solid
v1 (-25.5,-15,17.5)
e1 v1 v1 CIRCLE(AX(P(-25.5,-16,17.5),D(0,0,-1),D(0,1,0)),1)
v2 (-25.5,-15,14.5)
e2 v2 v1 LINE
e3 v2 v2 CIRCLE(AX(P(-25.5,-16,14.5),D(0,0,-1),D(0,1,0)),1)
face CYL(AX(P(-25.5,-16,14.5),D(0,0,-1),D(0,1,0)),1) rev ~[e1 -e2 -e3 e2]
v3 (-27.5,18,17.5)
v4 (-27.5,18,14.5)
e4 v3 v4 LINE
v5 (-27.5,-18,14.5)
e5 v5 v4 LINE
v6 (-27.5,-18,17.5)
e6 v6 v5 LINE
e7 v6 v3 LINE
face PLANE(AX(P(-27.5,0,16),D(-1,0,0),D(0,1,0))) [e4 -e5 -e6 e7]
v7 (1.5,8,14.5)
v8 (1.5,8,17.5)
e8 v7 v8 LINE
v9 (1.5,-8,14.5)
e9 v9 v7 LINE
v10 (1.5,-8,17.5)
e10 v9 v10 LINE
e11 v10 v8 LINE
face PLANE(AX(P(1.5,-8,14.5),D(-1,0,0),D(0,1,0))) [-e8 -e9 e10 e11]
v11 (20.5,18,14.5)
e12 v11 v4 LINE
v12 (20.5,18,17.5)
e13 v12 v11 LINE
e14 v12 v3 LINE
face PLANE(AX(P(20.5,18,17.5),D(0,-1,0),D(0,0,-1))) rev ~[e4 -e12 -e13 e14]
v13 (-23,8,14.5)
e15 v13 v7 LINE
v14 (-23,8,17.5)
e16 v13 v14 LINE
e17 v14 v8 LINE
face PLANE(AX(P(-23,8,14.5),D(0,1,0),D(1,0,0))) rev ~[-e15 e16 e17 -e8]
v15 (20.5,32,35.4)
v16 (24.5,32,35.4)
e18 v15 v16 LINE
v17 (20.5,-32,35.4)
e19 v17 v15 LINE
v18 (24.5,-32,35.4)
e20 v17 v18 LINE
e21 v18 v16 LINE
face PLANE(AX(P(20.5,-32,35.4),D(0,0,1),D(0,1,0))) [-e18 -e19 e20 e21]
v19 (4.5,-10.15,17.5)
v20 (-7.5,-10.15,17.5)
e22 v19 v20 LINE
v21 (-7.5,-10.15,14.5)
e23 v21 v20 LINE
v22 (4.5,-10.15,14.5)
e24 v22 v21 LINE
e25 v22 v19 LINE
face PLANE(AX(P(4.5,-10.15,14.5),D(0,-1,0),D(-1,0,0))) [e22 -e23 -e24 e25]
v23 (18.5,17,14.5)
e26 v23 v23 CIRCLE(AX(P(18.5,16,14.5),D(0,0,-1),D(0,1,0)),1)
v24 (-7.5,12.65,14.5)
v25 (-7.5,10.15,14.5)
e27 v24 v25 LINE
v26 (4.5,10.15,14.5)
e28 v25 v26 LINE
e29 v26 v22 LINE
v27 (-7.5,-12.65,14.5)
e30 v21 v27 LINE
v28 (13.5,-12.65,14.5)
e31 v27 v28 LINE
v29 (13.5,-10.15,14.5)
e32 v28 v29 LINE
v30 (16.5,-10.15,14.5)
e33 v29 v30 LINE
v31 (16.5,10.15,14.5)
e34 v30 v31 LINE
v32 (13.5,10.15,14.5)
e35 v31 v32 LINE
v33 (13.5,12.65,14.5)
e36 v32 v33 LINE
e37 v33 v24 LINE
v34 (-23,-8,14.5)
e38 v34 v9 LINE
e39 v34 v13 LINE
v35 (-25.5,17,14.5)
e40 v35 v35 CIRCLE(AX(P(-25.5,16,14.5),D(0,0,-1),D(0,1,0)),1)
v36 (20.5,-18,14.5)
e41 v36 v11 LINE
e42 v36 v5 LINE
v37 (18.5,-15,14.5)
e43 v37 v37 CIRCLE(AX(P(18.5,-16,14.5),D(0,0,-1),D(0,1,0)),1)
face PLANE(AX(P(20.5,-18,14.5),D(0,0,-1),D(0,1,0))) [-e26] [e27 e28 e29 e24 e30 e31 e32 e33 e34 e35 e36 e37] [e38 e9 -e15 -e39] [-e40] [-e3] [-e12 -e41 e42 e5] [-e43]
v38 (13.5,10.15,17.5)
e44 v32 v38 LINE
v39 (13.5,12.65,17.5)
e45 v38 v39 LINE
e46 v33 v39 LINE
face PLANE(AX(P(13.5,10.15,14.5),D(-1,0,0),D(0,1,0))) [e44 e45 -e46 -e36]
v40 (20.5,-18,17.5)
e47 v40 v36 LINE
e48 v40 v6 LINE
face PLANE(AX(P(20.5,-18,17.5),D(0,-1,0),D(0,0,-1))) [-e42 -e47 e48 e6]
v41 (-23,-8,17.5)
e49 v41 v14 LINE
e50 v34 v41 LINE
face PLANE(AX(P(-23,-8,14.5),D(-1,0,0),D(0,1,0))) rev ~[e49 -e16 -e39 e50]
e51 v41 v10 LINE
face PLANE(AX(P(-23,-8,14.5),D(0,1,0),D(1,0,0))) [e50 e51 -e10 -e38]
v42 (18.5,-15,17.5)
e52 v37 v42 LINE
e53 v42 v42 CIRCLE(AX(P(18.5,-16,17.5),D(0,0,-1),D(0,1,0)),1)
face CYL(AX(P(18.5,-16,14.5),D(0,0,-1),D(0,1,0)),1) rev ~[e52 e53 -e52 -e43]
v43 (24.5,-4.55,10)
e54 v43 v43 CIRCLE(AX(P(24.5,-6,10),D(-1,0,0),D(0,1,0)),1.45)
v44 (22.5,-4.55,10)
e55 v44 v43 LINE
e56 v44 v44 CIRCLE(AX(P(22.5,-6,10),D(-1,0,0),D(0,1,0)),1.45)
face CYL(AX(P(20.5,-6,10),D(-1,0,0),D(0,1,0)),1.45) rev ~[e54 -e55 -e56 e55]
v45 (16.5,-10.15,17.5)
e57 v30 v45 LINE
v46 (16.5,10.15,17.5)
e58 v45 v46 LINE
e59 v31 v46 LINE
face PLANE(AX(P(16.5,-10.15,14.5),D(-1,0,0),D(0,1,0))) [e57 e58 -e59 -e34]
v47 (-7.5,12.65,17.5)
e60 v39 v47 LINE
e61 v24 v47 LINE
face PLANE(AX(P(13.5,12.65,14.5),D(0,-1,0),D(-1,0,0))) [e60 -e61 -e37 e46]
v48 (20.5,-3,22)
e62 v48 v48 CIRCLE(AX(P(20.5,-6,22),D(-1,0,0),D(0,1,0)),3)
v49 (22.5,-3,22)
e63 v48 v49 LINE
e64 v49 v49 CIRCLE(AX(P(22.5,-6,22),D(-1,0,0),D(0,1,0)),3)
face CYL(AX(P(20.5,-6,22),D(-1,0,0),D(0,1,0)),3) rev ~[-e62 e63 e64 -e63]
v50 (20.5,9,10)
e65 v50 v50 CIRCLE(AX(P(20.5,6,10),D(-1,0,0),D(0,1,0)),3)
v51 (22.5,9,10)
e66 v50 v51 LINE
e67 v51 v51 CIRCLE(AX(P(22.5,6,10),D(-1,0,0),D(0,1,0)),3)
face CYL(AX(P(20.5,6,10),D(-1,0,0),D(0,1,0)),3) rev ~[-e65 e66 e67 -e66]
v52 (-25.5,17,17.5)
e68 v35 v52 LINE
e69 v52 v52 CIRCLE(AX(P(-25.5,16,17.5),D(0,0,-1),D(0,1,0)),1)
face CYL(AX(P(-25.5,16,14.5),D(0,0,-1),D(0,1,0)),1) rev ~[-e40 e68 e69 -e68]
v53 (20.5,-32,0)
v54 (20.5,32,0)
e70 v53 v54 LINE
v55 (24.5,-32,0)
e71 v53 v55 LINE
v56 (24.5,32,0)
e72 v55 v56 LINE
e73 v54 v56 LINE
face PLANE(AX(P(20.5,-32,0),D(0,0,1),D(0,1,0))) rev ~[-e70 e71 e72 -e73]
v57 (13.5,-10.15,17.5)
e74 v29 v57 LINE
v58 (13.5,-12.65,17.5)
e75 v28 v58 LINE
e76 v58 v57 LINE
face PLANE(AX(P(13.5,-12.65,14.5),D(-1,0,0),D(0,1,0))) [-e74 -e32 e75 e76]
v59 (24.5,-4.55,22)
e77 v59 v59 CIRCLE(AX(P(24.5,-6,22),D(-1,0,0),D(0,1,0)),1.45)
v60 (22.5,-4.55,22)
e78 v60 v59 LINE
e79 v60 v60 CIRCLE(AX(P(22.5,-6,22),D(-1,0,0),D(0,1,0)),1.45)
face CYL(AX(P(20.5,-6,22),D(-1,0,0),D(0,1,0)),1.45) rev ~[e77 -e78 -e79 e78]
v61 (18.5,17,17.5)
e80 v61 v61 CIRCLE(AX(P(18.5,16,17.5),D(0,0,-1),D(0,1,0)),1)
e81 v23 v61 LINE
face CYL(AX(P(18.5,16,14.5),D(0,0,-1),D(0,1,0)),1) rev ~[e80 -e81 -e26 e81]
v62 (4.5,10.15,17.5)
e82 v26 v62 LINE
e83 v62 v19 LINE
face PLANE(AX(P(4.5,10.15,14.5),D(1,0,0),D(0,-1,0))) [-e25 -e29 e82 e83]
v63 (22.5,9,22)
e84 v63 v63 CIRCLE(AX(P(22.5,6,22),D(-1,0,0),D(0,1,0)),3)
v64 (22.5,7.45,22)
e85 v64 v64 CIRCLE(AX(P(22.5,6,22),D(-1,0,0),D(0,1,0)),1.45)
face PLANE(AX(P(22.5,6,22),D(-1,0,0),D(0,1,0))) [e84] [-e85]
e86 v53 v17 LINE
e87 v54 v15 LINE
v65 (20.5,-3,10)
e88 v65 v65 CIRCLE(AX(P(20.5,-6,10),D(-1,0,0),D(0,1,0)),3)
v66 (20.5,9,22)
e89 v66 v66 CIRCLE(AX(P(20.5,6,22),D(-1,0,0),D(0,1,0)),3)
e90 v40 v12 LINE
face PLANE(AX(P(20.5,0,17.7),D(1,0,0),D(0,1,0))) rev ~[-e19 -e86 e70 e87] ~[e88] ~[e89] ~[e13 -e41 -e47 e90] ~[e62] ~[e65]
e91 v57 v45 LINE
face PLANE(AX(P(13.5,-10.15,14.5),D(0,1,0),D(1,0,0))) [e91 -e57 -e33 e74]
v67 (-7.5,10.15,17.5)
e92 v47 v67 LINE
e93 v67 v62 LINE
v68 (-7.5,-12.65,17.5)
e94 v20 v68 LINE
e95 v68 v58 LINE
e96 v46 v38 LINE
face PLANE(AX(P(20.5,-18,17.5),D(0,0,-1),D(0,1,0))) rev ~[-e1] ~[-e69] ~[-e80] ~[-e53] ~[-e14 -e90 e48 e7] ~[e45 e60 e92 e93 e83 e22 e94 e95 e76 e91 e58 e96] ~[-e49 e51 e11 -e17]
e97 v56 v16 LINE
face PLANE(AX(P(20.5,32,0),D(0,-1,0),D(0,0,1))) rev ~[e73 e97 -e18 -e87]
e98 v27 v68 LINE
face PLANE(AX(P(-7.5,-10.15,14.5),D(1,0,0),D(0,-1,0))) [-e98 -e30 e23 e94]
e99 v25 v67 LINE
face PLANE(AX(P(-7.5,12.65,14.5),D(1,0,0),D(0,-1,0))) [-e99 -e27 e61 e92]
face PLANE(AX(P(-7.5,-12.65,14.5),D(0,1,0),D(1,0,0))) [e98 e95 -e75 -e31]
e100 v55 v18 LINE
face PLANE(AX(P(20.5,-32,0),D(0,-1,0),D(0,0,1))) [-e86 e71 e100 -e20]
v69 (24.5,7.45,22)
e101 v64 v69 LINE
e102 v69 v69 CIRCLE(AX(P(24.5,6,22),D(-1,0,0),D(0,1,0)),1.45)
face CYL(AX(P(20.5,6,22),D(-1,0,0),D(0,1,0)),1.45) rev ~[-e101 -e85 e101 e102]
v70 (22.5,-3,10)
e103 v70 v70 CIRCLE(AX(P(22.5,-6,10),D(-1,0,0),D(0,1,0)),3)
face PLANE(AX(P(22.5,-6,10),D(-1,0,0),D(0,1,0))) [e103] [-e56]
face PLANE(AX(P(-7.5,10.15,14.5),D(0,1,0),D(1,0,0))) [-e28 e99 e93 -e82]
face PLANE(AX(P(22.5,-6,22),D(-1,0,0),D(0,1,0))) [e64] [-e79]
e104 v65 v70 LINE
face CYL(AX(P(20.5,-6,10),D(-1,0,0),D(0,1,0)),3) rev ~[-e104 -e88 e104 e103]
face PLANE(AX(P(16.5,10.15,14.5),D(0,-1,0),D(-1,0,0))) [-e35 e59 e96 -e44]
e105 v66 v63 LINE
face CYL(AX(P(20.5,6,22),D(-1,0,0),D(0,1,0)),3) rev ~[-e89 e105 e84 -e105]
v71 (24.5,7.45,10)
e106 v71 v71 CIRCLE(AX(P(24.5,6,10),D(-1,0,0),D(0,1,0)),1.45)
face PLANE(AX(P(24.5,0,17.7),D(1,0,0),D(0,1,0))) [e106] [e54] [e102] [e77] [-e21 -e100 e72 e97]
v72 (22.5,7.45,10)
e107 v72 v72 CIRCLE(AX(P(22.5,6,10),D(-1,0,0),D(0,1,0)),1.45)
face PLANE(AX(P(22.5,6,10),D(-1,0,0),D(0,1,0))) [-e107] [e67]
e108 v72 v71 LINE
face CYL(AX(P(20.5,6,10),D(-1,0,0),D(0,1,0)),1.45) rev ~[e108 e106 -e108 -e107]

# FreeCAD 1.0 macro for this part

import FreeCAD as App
import Part
import Sketcher

V = App.Vector
Q = App.Units.Quantity


def add_polygon(sketch, points):
    """Adds a closed chain of lines whose ends are joined by coincident constraints."""
    first, n = sketch.GeometryCount, len(points)
    for a, b in zip(points, points[1:] + points[:1]):
        sketch.addGeometry(Part.LineSegment(App.Vector(*a, 0), App.Vector(*b, 0)), False)
    for i in range(n):
        sketch.addConstraint(Sketcher.Constraint("Coincident", first + i, 2, first + (i + 1) % n, 1))

doc = App.newDocument("Part")
params = doc.addObject("Spreadsheet::Sheet", "Params")
for row, (alias, value) in enumerate([
    ("sketch1_width", "64 mm"),
    ("sketch1_height", "35.4 mm"),
    ("pad1_length", "4 mm"),
    ("sketch2_diameter", "6 mm"),
    ("pocket1_length", "2 mm"),
    ("sketch3_diameter", "2.9 mm"),
    ("pocket2_length", "5 mm"),
    ("sketch4_width", "36 mm"),
    ("sketch4_height", "3 mm"),
    ("pad2_length", "48 mm"),
    ("sketch5_diameter", "2 mm"),
    ("sketch5_width", "21 mm"),
    ("sketch5_width2", "3 mm"),
    ("sketch5_width3", "12 mm"),
    ("sketch5_height", "16 mm"),
    ("pocket3_length", "5 mm"),
], start=1):
    params.set(f"A{row}", alias)
    params.set(f"B{row}", "=" + value)
    params.setAlias(f"B{row}", alias)

body = doc.addObject("PartDesign::Body", "Body")

# Sketch on YZ plane
sketch1 = doc.addObject("Sketcher::SketchObject", "Sketch")
body.addObject(sketch1)
sketch1.AttachmentSupport = (doc.YZ_Plane, [""])
sketch1.MapMode = "FlatFace"
sketch1.AttachmentOffset = App.Placement(V(0, 0, 20.5), App.Rotation())
add_polygon(sketch1, [(-32, 35.4), (-32, 0), (32, 0), (32, 35.4)])  # lines 0-3
sketch1.addConstraint(Sketcher.Constraint("Vertical", 0))
sketch1.addConstraint(Sketcher.Constraint("Horizontal", 1))
sketch1.addConstraint(Sketcher.Constraint("Vertical", 2))
sketch1.addConstraint(Sketcher.Constraint("Horizontal", 3))
sketch1.addConstraint(Sketcher.Constraint("Symmetric", 0, 2, 1, 2, -1, 1))
sketch1.addConstraint(Sketcher.Constraint("DistanceX", 1, 1, 1, 2, Q("64 mm")))
sketch1.addConstraint(Sketcher.Constraint("DistanceY", 0, 2, 0, 1, Q("35.4 mm")))
sketch1.setExpression("Constraints[9]", "Params.sketch1_width")
sketch1.setExpression("Constraints[10]", "Params.sketch1_height")
pad1 = doc.addObject("PartDesign::Pad", "Pad")
body.addObject(pad1)
pad1.Profile = sketch1
pad1.setExpression("Length", "Params.pad1_length")

# Sketch on YZ plane
sketch2 = doc.addObject("Sketcher::SketchObject", "Sketch001")
body.addObject(sketch2)
sketch2.AttachmentSupport = (doc.YZ_Plane, [""])
sketch2.MapMode = "FlatFace"
sketch2.AttachmentOffset = App.Placement(V(0, 0, 20.5), App.Rotation())
sketch2.addGeometry(Part.Circle(V(6, 22, 0), V(0, 0, 1), 3), False)
sketch2.addGeometry(Part.Circle(V(-6, 22, 0), V(0, 0, 1), 3), False)
sketch2.addGeometry(Part.Circle(V(6, 10, 0), V(0, 0, 1), 3), False)
sketch2.addGeometry(Part.Circle(V(-6, 10, 0), V(0, 0, 1), 3), False)
sketch2.addConstraint(Sketcher.Constraint("Equal", 0, 1))
sketch2.addConstraint(Sketcher.Constraint("Equal", 1, 2))
sketch2.addConstraint(Sketcher.Constraint("Equal", 2, 3))
sketch2.addConstraint(Sketcher.Constraint("Symmetric", 0, 3, 1, 3, -2))
sketch2.addConstraint(Sketcher.Constraint("Symmetric", 2, 3, 3, 3, -2))
sketch2.addConstraint(Sketcher.Constraint("Vertical", 0, 3, 2, 3))
sketch2.addConstraint(Sketcher.Constraint("Diameter", 0, Q("6 mm")))
sketch2.addConstraint(Sketcher.Constraint("DistanceX", -1, 1, 0, 3, Q("6 mm")))
sketch2.addConstraint(Sketcher.Constraint("DistanceY", -1, 1, 0, 3, Q("22 mm")))
sketch2.addConstraint(Sketcher.Constraint("DistanceY", -1, 1, 2, 3, Q("10 mm")))
sketch2.setExpression("Constraints[6]", "Params.sketch2_diameter")
pocket1 = doc.addObject("PartDesign::Pocket", "Pocket")
body.addObject(pocket1)
pocket1.Profile = sketch2
pocket1.setExpression("Length", "Params.pocket1_length")
pocket1.Reversed = True

# Sketch on YZ plane
sketch3 = doc.addObject("Sketcher::SketchObject", "Sketch002")
body.addObject(sketch3)
sketch3.AttachmentSupport = (doc.YZ_Plane, [""])
sketch3.MapMode = "FlatFace"
sketch3.AttachmentOffset = App.Placement(V(0, 0, 20.5), App.Rotation())
sketch3.addGeometry(Part.Circle(V(6, 22, 0), V(0, 0, 1), 1.45), False)
sketch3.addGeometry(Part.Circle(V(-6, 22, 0), V(0, 0, 1), 1.45), False)
sketch3.addGeometry(Part.Circle(V(6, 10, 0), V(0, 0, 1), 1.45), False)
sketch3.addGeometry(Part.Circle(V(-6, 10, 0), V(0, 0, 1), 1.45), False)
sketch3.addConstraint(Sketcher.Constraint("Equal", 0, 1))
sketch3.addConstraint(Sketcher.Constraint("Equal", 1, 2))
sketch3.addConstraint(Sketcher.Constraint("Equal", 2, 3))
sketch3.addConstraint(Sketcher.Constraint("Symmetric", 0, 3, 1, 3, -2))
sketch3.addConstraint(Sketcher.Constraint("Symmetric", 2, 3, 3, 3, -2))
sketch3.addConstraint(Sketcher.Constraint("Vertical", 0, 3, 2, 3))
sketch3.addConstraint(Sketcher.Constraint("Diameter", 0, Q("2.9 mm")))
sketch3.addConstraint(Sketcher.Constraint("DistanceX", -1, 1, 0, 3, Q("6 mm")))
sketch3.addConstraint(Sketcher.Constraint("DistanceY", -1, 1, 0, 3, Q("22 mm")))
sketch3.addConstraint(Sketcher.Constraint("DistanceY", -1, 1, 2, 3, Q("10 mm")))
sketch3.setExpression("Constraints[6]", "Params.sketch3_diameter")
pocket2 = doc.addObject("PartDesign::Pocket", "Pocket001")
body.addObject(pocket2)
pocket2.Profile = sketch3
pocket2.setExpression("Length", "Params.pocket2_length")
pocket2.Reversed = True

# Sketch on YZ plane
sketch4 = doc.addObject("Sketcher::SketchObject", "Sketch003")
body.addObject(sketch4)
sketch4.AttachmentSupport = (doc.YZ_Plane, [""])
sketch4.MapMode = "FlatFace"
sketch4.AttachmentOffset = App.Placement(V(0, 0, 20.5), App.Rotation())
add_polygon(sketch4, [(-18, 14.5), (-18, 17.5), (18, 17.5), (18, 14.5)])  # lines 0-3
sketch4.addConstraint(Sketcher.Constraint("Vertical", 0))
sketch4.addConstraint(Sketcher.Constraint("Horizontal", 1))
sketch4.addConstraint(Sketcher.Constraint("Vertical", 2))
sketch4.addConstraint(Sketcher.Constraint("Horizontal", 3))
sketch4.addConstraint(Sketcher.Constraint("DistanceX", 1, 1, 1, 2, Q("36 mm")))
sketch4.addConstraint(Sketcher.Constraint("DistanceY", 0, 1, 0, 2, Q("3 mm")))
sketch4.addConstraint(Sketcher.Constraint("DistanceX", 0, 2, -1, 1, Q("18 mm")))
sketch4.addConstraint(Sketcher.Constraint("DistanceY", -1, 1, 0, 2, Q("17.5 mm")))
sketch4.setExpression("Constraints[8]", "Params.sketch4_width")
sketch4.setExpression("Constraints[9]", "Params.sketch4_height")
pad2 = doc.addObject("PartDesign::Pad", "Pad001")
body.addObject(pad2)
pad2.Profile = sketch4
pad2.setExpression("Length", "Params.pad2_length")
pad2.Reversed = True

# Sketch on XY plane
sketch5 = doc.addObject("Sketcher::SketchObject", "Sketch004")
body.addObject(sketch5)
sketch5.AttachmentSupport = (doc.XY_Plane, [""])
sketch5.MapMode = "FlatFace"
sketch5.AttachmentOffset = App.Placement(V(0, 0, 14.5), App.Rotation())
sketch5.addGeometry(Part.Circle(V(-25.5, 16, 0), V(0, 0, 1), 1), False)  # 0
sketch5.addGeometry(Part.Circle(V(-25.5, -16, 0), V(0, 0, 1), 1), False)  # 1
sketch5.addGeometry(Part.Circle(V(18.5, 16, 0), V(0, 0, 1), 1), False)  # 2
sketch5.addGeometry(Part.Circle(V(18.5, -16, 0), V(0, 0, 1), 1), False)  # 3
add_polygon(sketch5, [(-7.5, 10.15), (-7.5, 12.65), (13.5, 12.65), (13.5, 10.15), (16.5, 10.15), (16.5, -10.15), (13.5, -10.15), (13.5, -12.65), (-7.5, -12.65), (-7.5, -10.15), (4.5, -10.15), (4.5, 10.15)])  # lines 4-15
add_polygon(sketch5, [(1.5, -8), (-23, -8), (-23, 8), (1.5, 8)])  # lines 16-19
sketch5.addConstraint(Sketcher.Constraint("Vertical", 4))
sketch5.addConstraint(Sketcher.Constraint("Horizontal", 5))
sketch5.addConstraint(Sketcher.Constraint("Vertical", 6))
sketch5.addConstraint(Sketcher.Constraint("Horizontal", 7))
sketch5.addConstraint(Sketcher.Constraint("Vertical", 8))
sketch5.addConstraint(Sketcher.Constraint("Horizontal", 9))
sketch5.addConstraint(Sketcher.Constraint("Vertical", 10))
sketch5.addConstraint(Sketcher.Constraint("Horizontal", 11))
sketch5.addConstraint(Sketcher.Constraint("Vertical", 12))
sketch5.addConstraint(Sketcher.Constraint("Horizontal", 13))
sketch5.addConstraint(Sketcher.Constraint("Vertical", 14))
sketch5.addConstraint(Sketcher.Constraint("Horizontal", 15))
sketch5.addConstraint(Sketcher.Constraint("Horizontal", 16))
sketch5.addConstraint(Sketcher.Constraint("Vertical", 17))
sketch5.addConstraint(Sketcher.Constraint("Horizontal", 18))
sketch5.addConstraint(Sketcher.Constraint("Vertical", 19))
sketch5.addConstraint(Sketcher.Constraint("Equal", 0, 1))
sketch5.addConstraint(Sketcher.Constraint("Equal", 1, 2))
sketch5.addConstraint(Sketcher.Constraint("Equal", 2, 3))
sketch5.addConstraint(Sketcher.Constraint("Symmetric", 0, 3, 1, 3, -1))
sketch5.addConstraint(Sketcher.Constraint("Symmetric", 2, 3, 3, 3, -1))
sketch5.addConstraint(Sketcher.Constraint("Symmetric", 6, 2, 9, 2, -1))
sketch5.addConstraint(Sketcher.Constraint("Symmetric", 4, 2, 11, 2, -1))
sketch5.addConstraint(Sketcher.Constraint("Horizontal", 0, 3, 2, 3))
sketch5.addConstraint(Sketcher.Constraint("Horizontal", 9, 2, 12, 2))
sketch5.addConstraint(Sketcher.Constraint("Horizontal", 7, 2, 14, 2))
sketch5.addConstraint(Sketcher.Constraint("Diameter", 0, Q("2 mm")))
sketch5.addConstraint(Sketcher.Constraint("DistanceX", 5, 1, 5, 2, Q("21 mm")))
sketch5.addConstraint(Sketcher.Constraint("DistanceX", 7, 1, 7, 2, Q("3 mm")))
sketch5.addConstraint(Sketcher.Constraint("DistanceX", 13, 1, 13, 2, Q("12 mm")))
sketch5.addConstraint(Sketcher.Constraint("DistanceY", 17, 1, 17, 2, Q("16 mm")))
sketch5.addConstraint(Sketcher.Constraint("DistanceX", 16, 2, 16, 1, Q("24.5 mm")))
sketch5.addConstraint(Sketcher.Constraint("DistanceY", 4, 1, 4, 2, Q("2.5 mm")))
sketch5.addConstraint(Sketcher.Constraint("DistanceY", 8, 2, 8, 1, Q("20.3 mm")))
sketch5.addConstraint(Sketcher.Constraint("DistanceY", -1, 1, 0, 3, Q("16 mm")))
sketch5.addConstraint(Sketcher.Constraint("DistanceX", 16, 2, -1, 1, Q("23 mm")))
sketch5.addConstraint(Sketcher.Constraint("DistanceY", 16, 2, -1, 1, Q("8 mm")))
sketch5.addConstraint(Sketcher.Constraint("DistanceX", 0, 3, 2, 3, Q("44 mm")))
sketch5.addConstraint(Sketcher.Constraint("DistanceX", 0, 3, 4, 2, Q("18 mm")))
sketch5.addConstraint(Sketcher.Constraint("DistanceX", 18, 2, 14, 2, Q("3 mm")))
sketch5.setExpression("Constraints[42]", "Params.sketch5_diameter")
sketch5.setExpression("Constraints[43]", "Params.sketch5_width")
sketch5.setExpression("Constraints[44]", "Params.sketch5_width2")
sketch5.setExpression("Constraints[45]", "Params.sketch5_width3")
sketch5.setExpression("Constraints[46]", "Params.sketch5_height")
pocket3 = doc.addObject("PartDesign::Pocket", "Pocket002")
body.addObject(pocket3)
pocket3.Profile = sketch5
pocket3.setExpression("Length", "Params.pocket3_length")
pocket3.Reversed = True

doc.recompute()
